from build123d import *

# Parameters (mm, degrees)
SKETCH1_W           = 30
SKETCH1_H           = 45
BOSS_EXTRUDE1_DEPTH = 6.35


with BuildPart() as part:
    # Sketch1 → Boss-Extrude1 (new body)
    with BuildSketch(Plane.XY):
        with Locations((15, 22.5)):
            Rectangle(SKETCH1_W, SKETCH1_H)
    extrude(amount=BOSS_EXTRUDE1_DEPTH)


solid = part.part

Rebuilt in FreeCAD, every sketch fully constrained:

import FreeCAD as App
import Part
import Sketcher

V = App.Vector

doc = App.newDocument("Part")
params = doc.addObject("Spreadsheet::Sheet", "Params")
for row, (alias, value) in enumerate([
    ("sketch1_width", "30 mm"),
    ("sketch1_height", "45 mm"),
    ("pad1_length", "6.35 mm"),
], start=1):
    params.set(f"A{row}", alias)
    params.set(f"B{row}", "=" + value)
    params.setAlias(f"B{row}", alias)

body = doc.addObject("PartDesign::Body", "Body")

# Sketch on XY plane
sketch1 = body.newObject("Sketcher::SketchObject", "Sketch")
sketch1.AttachmentSupport = (doc.getObject("XY_Plane"), [""])
sketch1.MapMode = "FlatFace"
sketch1.addGeometry([
    Part.LineSegment(V(0, 45, 0), V(0, 0, 0)),
    Part.LineSegment(V(0, 0, 0), V(30, 0, 0)),
    Part.LineSegment(V(30, 0, 0), V(30, 45, 0)),
    Part.LineSegment(V(30, 45, 0), V(0, 45, 0)),
], False)
sketch1.addConstraint([
    Sketcher.Constraint("Coincident", 0, 2, 1, 1),
    Sketcher.Constraint("Coincident", 1, 2, 2, 1),
    Sketcher.Constraint("Coincident", 2, 2, 3, 1),
    Sketcher.Constraint("Coincident", 3, 2, 0, 1),
    Sketcher.Constraint("Vertical", 0),
    Sketcher.Constraint("Horizontal", 1),
    Sketcher.Constraint("Vertical", 2),
    Sketcher.Constraint("Horizontal", 3),
    Sketcher.Constraint("Coincident", 0, 2, -1, 1),
    Sketcher.Constraint("DistanceX", 1, 1, 1, 2, 30.0),
    Sketcher.Constraint("DistanceY", 0, 2, 0, 1, 45.0),
])
sketch1.setExpression("Constraints[9]", "Params.sketch1_width")
sketch1.setExpression("Constraints[10]", "Params.sketch1_height")
pad1 = body.newObject("PartDesign::Pad", "Pad")
pad1.Profile = sketch1
pad1.setExpression("Length", "Params.pad1_length")

doc.recompute()
